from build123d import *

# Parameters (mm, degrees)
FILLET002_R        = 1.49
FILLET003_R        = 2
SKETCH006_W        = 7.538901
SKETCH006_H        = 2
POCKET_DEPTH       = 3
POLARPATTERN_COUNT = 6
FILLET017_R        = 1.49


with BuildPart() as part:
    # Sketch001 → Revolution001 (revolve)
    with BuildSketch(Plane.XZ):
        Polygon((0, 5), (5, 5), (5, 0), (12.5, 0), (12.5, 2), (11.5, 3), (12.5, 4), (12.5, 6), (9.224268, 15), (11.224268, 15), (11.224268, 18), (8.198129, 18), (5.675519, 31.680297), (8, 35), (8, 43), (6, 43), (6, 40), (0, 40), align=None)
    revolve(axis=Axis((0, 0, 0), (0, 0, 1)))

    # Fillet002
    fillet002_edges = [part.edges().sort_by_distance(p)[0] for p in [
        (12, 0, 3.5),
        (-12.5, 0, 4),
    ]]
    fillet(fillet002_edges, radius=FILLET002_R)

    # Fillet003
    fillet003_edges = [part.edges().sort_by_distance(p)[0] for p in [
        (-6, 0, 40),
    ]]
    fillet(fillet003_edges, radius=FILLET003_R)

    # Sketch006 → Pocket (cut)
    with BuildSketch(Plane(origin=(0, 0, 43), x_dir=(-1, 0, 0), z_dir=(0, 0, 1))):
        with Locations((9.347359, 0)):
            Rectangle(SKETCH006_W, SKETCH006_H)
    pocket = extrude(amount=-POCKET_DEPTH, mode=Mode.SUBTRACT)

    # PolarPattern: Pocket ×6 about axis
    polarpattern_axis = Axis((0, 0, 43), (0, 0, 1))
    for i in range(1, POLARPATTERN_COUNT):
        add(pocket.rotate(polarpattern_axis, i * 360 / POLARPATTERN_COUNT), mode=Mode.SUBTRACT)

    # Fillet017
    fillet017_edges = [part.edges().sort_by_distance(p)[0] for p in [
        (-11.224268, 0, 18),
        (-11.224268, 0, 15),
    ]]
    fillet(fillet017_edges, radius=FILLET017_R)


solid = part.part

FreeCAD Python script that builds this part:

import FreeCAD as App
import Part
import Sketcher
from FreeCAD import Vector
Q = App.Units.Quantity


def edges_at(feature, points):
    """Names of the edges that pass closest to the given points."""
    edges = feature.Shape.Edges
    near = lambda p: min(range(len(edges)), key=lambda i: edges[i].distToShape(Part.Vertex(*p))[0])
    return sorted({f"Edge{near(p) + 1}" for p in points})

doc = App.newDocument("Part")
params = doc.addObject("Spreadsheet::Sheet", "Params")
for row, (alias, value) in enumerate([
    ("sketch1_width", "5 mm"),
    ("sketch1_width2", "2 mm"),
    ("sketch1_width3", "6 mm"),
    ("sketch1_height", "3 mm"),
    ("sketch1_height2", "8 mm"),
    ("revolution_angle", "360 deg"),
    ("fillet_radius", "1.49 mm"),
    ("fillet2_radius", "2 mm"),
    ("sketch2_height", "2 mm"),
    ("pocket1_length", "3 mm"),
    ("fillet3_radius", "1.49 mm"),
], start=1):
    params.set(f"A{row}", alias)
    params.set(f"B{row}", "=" + value)
    params.setAlias(f"B{row}", alias)

body = doc.addObject("PartDesign::Body", "Body")

sketch1 = body.newObject("Sketcher::SketchObject", "Sketch")
sketch1.AttachmentSupport = (doc.getObject("XZ_Plane"), [""])
sketch1.MapMode = "FlatFace"
sketch1.addGeometry(Part.LineSegment(Vector(0, 5, 0), Vector(5, 5, 0)), False)
sketch1.addGeometry(Part.LineSegment(Vector(5, 5, 0), Vector(5, 0, 0)), False)
sketch1.addGeometry(Part.LineSegment(Vector(5, 0, 0), Vector(12.5, 0, 0)), False)
sketch1.addGeometry(Part.LineSegment(Vector(12.5, 0, 0), Vector(12.5, 2, 0)), False)
sketch1.addGeometry(Part.LineSegment(Vector(12.5, 2, 0), Vector(11.5, 3, 0)), False)
sketch1.addGeometry(Part.LineSegment(Vector(11.5, 3, 0), Vector(12.5, 4, 0)), False)
sketch1.addGeometry(Part.LineSegment(Vector(12.5, 4, 0), Vector(12.5, 6, 0)), False)
sketch1.addGeometry(Part.LineSegment(Vector(12.5, 6, 0), Vector(9.2, 15, 0)), False)
sketch1.addGeometry(Part.LineSegment(Vector(9.2, 15, 0), Vector(11.2, 15, 0)), False)
sketch1.addGeometry(Part.LineSegment(Vector(11.2, 15, 0), Vector(11.2, 18, 0)), False)
sketch1.addGeometry(Part.LineSegment(Vector(11.2, 18, 0), Vector(8.2, 18, 0)), False)
sketch1.addGeometry(Part.LineSegment(Vector(8.2, 18, 0), Vector(5.7, 31.7, 0)), False)
sketch1.addGeometry(Part.LineSegment(Vector(5.7, 31.7, 0), Vector(8, 35, 0)), False)
sketch1.addGeometry(Part.LineSegment(Vector(8, 35, 0), Vector(8, 43, 0)), False)
sketch1.addGeometry(Part.LineSegment(Vector(8, 43, 0), Vector(6, 43, 0)), False)
sketch1.addGeometry(Part.LineSegment(Vector(6, 43, 0), Vector(6, 40, 0)), False)
sketch1.addGeometry(Part.LineSegment(Vector(6, 40, 0), Vector(0, 40, 0)), False)
sketch1.addGeometry(Part.LineSegment(Vector(0, 40, 0), Vector(0, 5, 0)), False)
sketch1.addConstraint(Sketcher.Constraint("Coincident", 0, 2, 1, 1))
sketch1.addConstraint(Sketcher.Constraint("Coincident", 1, 2, 2, 1))
sketch1.addConstraint(Sketcher.Constraint("Coincident", 2, 2, 3, 1))
sketch1.addConstraint(Sketcher.Constraint("Coincident", 3, 2, 4, 1))
sketch1.addConstraint(Sketcher.Constraint("Coincident", 4, 2, 5, 1))
sketch1.addConstraint(Sketcher.Constraint("Coincident", 5, 2, 6, 1))
sketch1.addConstraint(Sketcher.Constraint("Coincident", 6, 2, 7, 1))
sketch1.addConstraint(Sketcher.Constraint("Coincident", 7, 2, 8, 1))
sketch1.addConstraint(Sketcher.Constraint("Coincident", 8, 2, 9, 1))
sketch1.addConstraint(Sketcher.Constraint("Coincident", 9, 2, 10, 1))
sketch1.addConstraint(Sketcher.Constraint("Coincident", 10, 2, 11, 1))
sketch1.addConstraint(Sketcher.Constraint("Coincident", 11, 2, 12, 1))
sketch1.addConstraint(Sketcher.Constraint("Coincident", 12, 2, 13, 1))
sketch1.addConstraint(Sketcher.Constraint("Coincident", 13, 2, 14, 1))
sketch1.addConstraint(Sketcher.Constraint("Coincident", 14, 2, 15, 1))
sketch1.addConstraint(Sketcher.Constraint("Coincident", 15, 2, 16, 1))
sketch1.addConstraint(Sketcher.Constraint("Coincident", 16, 2, 17, 1))
sketch1.addConstraint(Sketcher.Constraint("Coincident", 17, 2, 0, 1))
sketch1.addConstraint(Sketcher.Constraint("Horizontal", 0))
sketch1.addConstraint(Sketcher.Constraint("Vertical", 1))
sketch1.addConstraint(Sketcher.Constraint("Horizontal", 2))
sketch1.addConstraint(Sketcher.Constraint("Vertical", 3))
sketch1.addConstraint(Sketcher.Constraint("Vertical", 6))
sketch1.addConstraint(Sketcher.Constraint("Horizontal", 8))
sketch1.addConstraint(Sketcher.Constraint("Vertical", 9))
sketch1.addConstraint(Sketcher.Constraint("Horizontal", 10))
sketch1.addConstraint(Sketcher.Constraint("Vertical", 13))
sketch1.addConstraint(Sketcher.Constraint("Horizontal", 14))
sketch1.addConstraint(Sketcher.Constraint("Vertical", 15))
sketch1.addConstraint(Sketcher.Constraint("Horizontal", 16))
sketch1.addConstraint(Sketcher.Constraint("Vertical", 17))
sketch1.addConstraint(Sketcher.Constraint("PointOnObject", 1, 2, -1))
sketch1.addConstraint(Sketcher.Constraint("PointOnObject", 16, 2, -2))
sketch1.addConstraint(Sketcher.Constraint("Perpendicular", 4, 5))
sketch1.addConstraint(Sketcher.Constraint("Vertical", 3, 2, 5, 2))
sketch1.addConstraint(Sketcher.Constraint("Equal", 8, 14))
sketch1.addConstraint(Sketcher.Constraint("Equal", 0, 1))
sketch1.addConstraint(Sketcher.Constraint("Equal", 14, 3))
sketch1.addConstraint(Sketcher.Constraint("Equal", 3, 6))
sketch1.addConstraint(Sketcher.Constraint("Equal", 9, 15))
sketch1.addConstraint(Sketcher.Constraint("Equal", 4, 5))
sketch1.addConstraint(Sketcher.Constraint("DistanceX", 0, 1, 0, 2, Q("5 mm")))
sketch1.addConstraint(Sketcher.Constraint("DistanceX", 8, 1, 8, 2, Q("2 mm")))
sketch1.addConstraint(Sketcher.Constraint("DistanceX", 16, 2, 16, 1, Q("6 mm")))
sketch1.addConstraint(Sketcher.Constraint("DistanceY", 9, 1, 9, 2, Q("3 mm")))
sketch1.addConstraint(Sketcher.Constraint("DistanceY", 13, 1, 13, 2, Q("8 mm")))
sketch1.addConstraint(Sketcher.Constraint("DistanceY", 17, 2, 17, 1, Q("35 mm")))
sketch1.addConstraint(Sketcher.Constraint("Angle", 7, Q("109.999999 deg")))
sketch1.addConstraint(Sketcher.Constraint("Angle", 12, Q("55.000001 deg")))
sketch1.addConstraint(Sketcher.Constraint("DistanceX", 2, 1, 2, 2, Q("7.5 mm")))
sketch1.addConstraint(Sketcher.Constraint("DistanceY", -1, 1, 4, 2, Q("3 mm")))
sketch1.addConstraint(Sketcher.Constraint("DistanceY", -1, 1, 7, 2, Q("15 mm")))
sketch1.addConstraint(Sketcher.Constraint("DistanceX", 10, 2, 10, 1, Q("3.026139 mm")))
sketch1.addConstraint(Sketcher.Constraint("Distance", 12, Q("4.052609 mm")))
sketch1.setExpression("Constraints[41]", "Params.sketch1_width")
sketch1.setExpression("Constraints[42]", "Params.sketch1_width2")
sketch1.setExpression("Constraints[43]", "Params.sketch1_width3")
sketch1.setExpression("Constraints[44]", "Params.sketch1_height")
sketch1.setExpression("Constraints[45]", "Params.sketch1_height2")
revolution = body.newObject("PartDesign::Revolution", "Revolution")
revolution.Profile = sketch1
revolution.ReferenceAxis = (sketch1, ["V_Axis"])
revolution.setExpression("Angle", "Params.revolution_angle")
doc.recompute()

fillet = body.newObject("PartDesign::Fillet", "Fillet")
fillet.Base = (revolution, edges_at(revolution, [(12, 0, 3.5), (-12.5, 0, 4)]))
fillet.setExpression("Radius", "Params.fillet_radius")
doc.recompute()

fillet2 = body.newObject("PartDesign::Fillet", "Fillet001")
fillet2.Base = (fillet, edges_at(fillet, [(-6, 0, 40)]))
fillet2.setExpression("Radius", "Params.fillet2_radius")

sketch2 = body.newObject("Sketcher::SketchObject", "Sketch001")
sketch2.AttachmentSupport = (doc.getObject("XY_Plane"), [""])
sketch2.MapMode = "FlatFace"
sketch2.AttachmentOffset = App.Placement(Vector(0, 0, 43), App.Rotation())
sketch2.addGeometry(Part.LineSegment(Vector(-5.6, -1, 0), Vector(-5.6, 1, 0)), False)
sketch2.addGeometry(Part.LineSegment(Vector(-5.6, 1, 0), Vector(-13.1, 1, 0)), False)
sketch2.addGeometry(Part.LineSegment(Vector(-13.1, 1, 0), Vector(-13.1, -1, 0)), False)
sketch2.addGeometry(Part.LineSegment(Vector(-13.1, -1, 0), Vector(-5.6, -1, 0)), False)
sketch2.addConstraint(Sketcher.Constraint("Coincident", 0, 2, 1, 1))
sketch2.addConstraint(Sketcher.Constraint("Coincident", 1, 2, 2, 1))
sketch2.addConstraint(Sketcher.Constraint("Coincident", 2, 2, 3, 1))
sketch2.addConstraint(Sketcher.Constraint("Coincident", 3, 2, 0, 1))
sketch2.addConstraint(Sketcher.Constraint("Vertical", 0))
sketch2.addConstraint(Sketcher.Constraint("Horizontal", 1))
sketch2.addConstraint(Sketcher.Constraint("Vertical", 2))
sketch2.addConstraint(Sketcher.Constraint("Horizontal", 3))
sketch2.addConstraint(Sketcher.Constraint("DistanceY", 0, 1, 0, 2, Q("2 mm")))
sketch2.addConstraint(Sketcher.Constraint("DistanceY", -1, 1, 0, 2, Q("1 mm")))
sketch2.addConstraint(Sketcher.Constraint("DistanceX", 1, 2, 1, 1, Q("7.538901 mm")))
sketch2.addConstraint(Sketcher.Constraint("DistanceX", 0, 2, -1, 1, Q("5.577909 mm")))
sketch2.setExpression("Constraints[8]", "Params.sketch2_height")
pocket1 = body.newObject("PartDesign::Pocket", "Pocket")
pocket1.Profile = sketch2
pocket1.setExpression("Length", "Params.pocket1_length")
doc.recompute()

polarpattern = body.newObject("PartDesign::PolarPattern", "PolarPattern")
polarpattern.Originals = [pocket1]
polarpattern.Axis = (doc.getObject("Z_Axis"), [""])
polarpattern.Angle = 360
polarpattern.Occurrences = 6
body.Tip = polarpattern
doc.recompute()

fillet3 = body.newObject("PartDesign::Fillet", "Fillet002")
fillet3.Base = (polarpattern, edges_at(polarpattern, [(-11.224, 0, 18), (-11.224, 0, 15)]))
fillet3.setExpression("Radius", "Params.fillet3_radius")

doc.recompute()
